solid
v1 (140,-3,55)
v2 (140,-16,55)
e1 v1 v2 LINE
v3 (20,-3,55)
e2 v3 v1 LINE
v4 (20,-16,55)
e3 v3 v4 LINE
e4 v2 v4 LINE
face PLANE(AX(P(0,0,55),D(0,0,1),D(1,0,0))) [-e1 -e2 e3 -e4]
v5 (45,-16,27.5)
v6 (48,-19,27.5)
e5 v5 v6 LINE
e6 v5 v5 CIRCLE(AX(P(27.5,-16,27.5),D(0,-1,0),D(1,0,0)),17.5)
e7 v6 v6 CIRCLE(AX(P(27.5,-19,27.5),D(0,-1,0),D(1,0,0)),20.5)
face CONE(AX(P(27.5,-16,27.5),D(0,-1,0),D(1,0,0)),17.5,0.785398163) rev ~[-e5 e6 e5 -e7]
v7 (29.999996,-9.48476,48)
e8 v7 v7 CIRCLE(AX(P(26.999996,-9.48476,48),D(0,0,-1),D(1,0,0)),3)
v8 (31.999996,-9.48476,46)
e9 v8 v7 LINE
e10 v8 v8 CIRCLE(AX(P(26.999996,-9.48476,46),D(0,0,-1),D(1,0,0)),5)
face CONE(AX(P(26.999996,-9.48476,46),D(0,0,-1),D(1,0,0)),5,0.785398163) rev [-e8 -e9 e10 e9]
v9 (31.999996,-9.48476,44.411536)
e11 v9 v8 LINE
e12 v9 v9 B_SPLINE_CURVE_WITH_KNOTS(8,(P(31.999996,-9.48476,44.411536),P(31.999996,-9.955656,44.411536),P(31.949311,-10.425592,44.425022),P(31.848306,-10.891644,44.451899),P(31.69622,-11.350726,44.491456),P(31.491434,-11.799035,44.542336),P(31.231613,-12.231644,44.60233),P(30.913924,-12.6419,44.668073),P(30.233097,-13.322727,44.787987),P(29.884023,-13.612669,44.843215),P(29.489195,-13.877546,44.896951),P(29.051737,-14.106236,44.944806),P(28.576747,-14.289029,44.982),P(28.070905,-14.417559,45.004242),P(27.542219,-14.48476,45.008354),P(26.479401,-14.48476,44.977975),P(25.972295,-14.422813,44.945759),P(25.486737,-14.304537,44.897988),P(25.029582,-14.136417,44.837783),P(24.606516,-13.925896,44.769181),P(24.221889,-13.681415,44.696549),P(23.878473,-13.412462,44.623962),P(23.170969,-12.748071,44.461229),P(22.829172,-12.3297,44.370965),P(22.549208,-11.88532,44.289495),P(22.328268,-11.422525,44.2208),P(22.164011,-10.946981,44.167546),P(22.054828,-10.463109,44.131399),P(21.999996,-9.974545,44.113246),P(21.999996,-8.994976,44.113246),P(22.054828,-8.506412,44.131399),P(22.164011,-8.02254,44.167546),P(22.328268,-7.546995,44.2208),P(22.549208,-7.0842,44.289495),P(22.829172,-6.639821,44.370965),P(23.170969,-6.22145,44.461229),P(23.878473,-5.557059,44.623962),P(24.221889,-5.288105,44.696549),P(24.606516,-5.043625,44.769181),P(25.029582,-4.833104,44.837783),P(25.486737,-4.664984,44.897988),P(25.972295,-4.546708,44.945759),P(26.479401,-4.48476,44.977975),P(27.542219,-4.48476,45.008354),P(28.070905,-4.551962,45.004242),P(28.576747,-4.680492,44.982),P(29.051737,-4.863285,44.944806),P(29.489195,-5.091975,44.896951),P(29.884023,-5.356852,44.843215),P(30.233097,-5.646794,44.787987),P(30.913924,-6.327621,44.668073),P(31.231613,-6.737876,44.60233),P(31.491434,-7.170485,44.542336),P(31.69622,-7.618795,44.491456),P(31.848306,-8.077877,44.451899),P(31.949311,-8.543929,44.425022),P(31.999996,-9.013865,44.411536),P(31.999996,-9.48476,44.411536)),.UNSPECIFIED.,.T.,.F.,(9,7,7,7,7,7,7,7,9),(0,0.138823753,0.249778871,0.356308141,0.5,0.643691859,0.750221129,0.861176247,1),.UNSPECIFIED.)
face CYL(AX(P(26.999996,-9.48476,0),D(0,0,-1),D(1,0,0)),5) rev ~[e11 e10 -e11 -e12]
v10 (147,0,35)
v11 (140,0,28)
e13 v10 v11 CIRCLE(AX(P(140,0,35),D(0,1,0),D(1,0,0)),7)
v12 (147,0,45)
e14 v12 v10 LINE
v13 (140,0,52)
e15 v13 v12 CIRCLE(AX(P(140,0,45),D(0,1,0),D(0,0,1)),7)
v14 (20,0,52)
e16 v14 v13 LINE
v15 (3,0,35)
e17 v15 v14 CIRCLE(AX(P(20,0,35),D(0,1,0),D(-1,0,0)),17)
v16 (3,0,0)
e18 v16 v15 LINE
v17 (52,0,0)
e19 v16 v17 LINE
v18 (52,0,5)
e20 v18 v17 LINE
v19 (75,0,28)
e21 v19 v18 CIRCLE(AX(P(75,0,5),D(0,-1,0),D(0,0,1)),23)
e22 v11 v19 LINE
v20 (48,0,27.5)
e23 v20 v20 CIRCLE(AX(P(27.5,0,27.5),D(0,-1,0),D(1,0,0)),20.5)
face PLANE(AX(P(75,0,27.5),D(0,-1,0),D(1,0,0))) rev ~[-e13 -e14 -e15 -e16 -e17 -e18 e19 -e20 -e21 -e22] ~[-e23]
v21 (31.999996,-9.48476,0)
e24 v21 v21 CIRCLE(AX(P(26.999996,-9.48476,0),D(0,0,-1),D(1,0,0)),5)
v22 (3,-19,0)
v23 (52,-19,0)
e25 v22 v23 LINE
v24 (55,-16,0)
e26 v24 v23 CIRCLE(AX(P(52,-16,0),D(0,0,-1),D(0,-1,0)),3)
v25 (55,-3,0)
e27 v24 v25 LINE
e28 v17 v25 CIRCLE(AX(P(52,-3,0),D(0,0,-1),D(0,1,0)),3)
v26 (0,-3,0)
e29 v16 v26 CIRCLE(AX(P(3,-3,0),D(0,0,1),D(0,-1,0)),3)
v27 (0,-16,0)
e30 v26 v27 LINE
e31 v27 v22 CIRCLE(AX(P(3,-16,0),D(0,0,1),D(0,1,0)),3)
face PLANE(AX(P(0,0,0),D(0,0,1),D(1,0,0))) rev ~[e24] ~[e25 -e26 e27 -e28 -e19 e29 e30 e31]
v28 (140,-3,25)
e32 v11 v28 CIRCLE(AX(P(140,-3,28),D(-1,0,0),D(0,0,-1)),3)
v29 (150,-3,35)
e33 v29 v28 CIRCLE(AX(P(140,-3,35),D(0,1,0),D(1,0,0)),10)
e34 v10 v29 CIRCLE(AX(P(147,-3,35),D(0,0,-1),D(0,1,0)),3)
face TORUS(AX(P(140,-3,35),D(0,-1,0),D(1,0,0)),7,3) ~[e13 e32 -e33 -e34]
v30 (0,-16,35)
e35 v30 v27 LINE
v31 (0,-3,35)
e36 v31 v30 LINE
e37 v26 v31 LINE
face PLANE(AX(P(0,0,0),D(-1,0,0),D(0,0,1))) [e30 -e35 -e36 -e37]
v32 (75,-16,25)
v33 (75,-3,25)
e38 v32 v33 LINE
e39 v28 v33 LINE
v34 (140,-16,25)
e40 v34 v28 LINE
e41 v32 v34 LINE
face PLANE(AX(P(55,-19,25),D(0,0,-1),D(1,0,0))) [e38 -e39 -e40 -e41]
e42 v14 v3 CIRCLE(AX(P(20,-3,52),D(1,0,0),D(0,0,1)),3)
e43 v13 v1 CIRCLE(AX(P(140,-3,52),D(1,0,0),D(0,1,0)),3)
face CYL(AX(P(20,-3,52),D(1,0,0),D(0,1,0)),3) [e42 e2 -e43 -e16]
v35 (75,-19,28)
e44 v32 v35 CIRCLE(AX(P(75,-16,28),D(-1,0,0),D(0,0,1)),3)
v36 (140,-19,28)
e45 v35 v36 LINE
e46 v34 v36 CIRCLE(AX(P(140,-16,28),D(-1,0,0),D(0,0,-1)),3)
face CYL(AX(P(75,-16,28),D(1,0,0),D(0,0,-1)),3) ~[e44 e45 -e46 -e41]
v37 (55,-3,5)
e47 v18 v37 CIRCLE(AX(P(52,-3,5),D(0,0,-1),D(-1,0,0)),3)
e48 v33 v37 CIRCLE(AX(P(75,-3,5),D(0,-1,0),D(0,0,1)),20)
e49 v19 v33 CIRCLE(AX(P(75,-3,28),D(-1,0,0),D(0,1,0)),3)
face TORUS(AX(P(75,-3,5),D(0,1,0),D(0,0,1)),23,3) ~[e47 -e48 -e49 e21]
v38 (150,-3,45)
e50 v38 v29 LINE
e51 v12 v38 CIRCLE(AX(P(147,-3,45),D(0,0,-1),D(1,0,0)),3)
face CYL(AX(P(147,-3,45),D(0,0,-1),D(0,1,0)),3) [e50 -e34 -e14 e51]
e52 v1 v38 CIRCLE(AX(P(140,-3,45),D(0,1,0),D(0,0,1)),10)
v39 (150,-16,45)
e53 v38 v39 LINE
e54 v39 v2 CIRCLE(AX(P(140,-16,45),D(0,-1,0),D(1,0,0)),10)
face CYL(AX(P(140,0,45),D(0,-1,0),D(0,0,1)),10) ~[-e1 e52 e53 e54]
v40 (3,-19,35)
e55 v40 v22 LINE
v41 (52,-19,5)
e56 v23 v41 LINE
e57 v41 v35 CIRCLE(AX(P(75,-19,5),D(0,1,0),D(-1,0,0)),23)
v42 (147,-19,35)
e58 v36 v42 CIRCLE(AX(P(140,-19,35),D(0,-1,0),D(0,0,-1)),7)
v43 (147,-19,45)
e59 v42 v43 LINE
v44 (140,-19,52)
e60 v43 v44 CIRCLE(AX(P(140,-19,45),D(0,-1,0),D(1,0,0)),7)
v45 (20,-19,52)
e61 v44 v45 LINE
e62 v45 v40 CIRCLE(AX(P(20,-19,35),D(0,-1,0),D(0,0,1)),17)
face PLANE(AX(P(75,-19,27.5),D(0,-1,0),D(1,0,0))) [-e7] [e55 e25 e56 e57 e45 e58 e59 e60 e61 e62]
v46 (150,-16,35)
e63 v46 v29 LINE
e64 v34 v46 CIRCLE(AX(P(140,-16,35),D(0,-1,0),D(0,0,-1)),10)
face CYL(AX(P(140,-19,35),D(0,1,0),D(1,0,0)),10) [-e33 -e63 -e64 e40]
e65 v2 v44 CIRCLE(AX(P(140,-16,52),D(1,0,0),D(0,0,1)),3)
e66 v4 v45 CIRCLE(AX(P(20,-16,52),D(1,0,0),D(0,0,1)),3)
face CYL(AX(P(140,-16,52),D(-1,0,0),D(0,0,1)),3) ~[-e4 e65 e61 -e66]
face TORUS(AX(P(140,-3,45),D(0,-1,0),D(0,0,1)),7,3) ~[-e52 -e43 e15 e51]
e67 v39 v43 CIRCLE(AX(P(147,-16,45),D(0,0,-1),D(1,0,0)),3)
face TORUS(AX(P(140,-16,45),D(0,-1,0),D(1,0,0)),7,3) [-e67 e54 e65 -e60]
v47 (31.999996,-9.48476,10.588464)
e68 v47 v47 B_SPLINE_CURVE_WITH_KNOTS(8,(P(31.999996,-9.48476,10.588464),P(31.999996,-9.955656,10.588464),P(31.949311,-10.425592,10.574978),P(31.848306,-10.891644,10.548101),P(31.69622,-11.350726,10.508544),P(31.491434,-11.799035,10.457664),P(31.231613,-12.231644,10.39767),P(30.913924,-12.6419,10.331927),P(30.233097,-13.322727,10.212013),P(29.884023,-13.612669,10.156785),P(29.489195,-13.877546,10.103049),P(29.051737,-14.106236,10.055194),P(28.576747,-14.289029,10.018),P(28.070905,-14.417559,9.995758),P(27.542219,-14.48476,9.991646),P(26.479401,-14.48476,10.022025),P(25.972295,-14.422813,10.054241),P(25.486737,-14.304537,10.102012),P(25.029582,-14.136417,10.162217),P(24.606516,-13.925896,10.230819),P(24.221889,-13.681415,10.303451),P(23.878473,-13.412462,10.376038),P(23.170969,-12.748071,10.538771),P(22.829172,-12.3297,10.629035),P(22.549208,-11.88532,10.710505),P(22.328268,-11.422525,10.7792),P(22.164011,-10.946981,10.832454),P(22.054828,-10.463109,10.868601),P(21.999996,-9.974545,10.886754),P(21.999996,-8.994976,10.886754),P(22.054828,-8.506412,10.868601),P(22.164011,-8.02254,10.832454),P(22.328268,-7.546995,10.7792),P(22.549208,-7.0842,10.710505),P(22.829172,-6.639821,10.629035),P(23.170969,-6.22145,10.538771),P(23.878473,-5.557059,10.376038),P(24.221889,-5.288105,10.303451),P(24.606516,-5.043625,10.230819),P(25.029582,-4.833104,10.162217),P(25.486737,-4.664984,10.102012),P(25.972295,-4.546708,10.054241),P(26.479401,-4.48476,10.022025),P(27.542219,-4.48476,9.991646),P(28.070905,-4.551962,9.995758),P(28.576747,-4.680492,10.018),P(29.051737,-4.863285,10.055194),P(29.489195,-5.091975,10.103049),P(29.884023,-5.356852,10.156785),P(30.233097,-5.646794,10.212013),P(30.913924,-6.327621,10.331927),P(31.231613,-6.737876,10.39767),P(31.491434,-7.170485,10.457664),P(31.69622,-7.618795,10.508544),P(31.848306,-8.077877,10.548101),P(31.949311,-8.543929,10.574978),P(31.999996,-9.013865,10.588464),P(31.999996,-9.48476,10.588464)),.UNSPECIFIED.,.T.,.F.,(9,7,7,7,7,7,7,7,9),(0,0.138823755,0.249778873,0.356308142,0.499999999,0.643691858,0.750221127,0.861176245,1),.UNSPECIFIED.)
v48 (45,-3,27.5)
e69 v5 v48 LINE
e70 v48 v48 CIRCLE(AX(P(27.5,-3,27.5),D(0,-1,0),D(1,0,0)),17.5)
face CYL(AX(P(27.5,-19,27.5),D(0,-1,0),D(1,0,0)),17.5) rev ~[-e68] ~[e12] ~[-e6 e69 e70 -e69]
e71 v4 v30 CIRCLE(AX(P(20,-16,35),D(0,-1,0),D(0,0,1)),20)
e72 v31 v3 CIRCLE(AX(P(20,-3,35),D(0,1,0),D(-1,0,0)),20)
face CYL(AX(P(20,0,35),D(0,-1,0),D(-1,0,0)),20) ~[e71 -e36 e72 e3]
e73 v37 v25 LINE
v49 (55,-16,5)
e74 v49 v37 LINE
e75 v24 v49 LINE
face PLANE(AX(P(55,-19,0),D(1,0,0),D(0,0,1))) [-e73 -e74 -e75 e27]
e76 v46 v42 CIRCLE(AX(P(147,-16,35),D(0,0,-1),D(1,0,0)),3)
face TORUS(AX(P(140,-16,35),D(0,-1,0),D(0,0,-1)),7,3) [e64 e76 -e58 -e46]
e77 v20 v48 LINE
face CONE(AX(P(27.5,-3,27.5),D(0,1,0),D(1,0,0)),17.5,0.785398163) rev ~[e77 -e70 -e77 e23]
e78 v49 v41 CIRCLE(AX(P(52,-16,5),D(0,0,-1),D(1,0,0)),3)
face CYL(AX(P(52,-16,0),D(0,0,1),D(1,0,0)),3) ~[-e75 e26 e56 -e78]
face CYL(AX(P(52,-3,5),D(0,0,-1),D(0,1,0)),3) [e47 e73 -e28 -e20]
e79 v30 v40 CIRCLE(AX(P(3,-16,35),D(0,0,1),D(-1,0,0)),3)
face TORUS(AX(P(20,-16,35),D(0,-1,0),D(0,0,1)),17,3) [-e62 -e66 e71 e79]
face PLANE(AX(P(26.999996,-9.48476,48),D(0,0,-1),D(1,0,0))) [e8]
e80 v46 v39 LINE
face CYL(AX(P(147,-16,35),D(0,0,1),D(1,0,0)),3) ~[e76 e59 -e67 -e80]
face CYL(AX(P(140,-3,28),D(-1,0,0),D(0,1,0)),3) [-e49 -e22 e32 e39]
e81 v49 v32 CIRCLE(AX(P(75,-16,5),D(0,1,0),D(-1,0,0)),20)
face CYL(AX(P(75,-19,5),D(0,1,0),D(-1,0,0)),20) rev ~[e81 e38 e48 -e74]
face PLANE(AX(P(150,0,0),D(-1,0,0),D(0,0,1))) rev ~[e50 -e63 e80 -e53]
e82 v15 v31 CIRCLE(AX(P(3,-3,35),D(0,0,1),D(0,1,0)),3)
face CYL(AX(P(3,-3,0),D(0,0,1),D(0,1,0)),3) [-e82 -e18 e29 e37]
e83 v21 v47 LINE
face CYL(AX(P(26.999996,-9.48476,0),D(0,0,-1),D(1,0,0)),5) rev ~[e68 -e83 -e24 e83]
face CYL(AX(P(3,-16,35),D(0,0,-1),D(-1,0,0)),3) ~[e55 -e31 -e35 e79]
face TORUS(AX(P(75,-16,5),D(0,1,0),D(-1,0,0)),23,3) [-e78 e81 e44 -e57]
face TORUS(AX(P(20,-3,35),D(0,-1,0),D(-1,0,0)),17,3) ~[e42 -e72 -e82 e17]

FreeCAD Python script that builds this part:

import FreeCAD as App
import Part
import Sketcher

V = App.Vector


def edges_at(feature, points):
    """Names of the edges that pass closest to the given points."""
    edges = feature.Shape.Edges
    near = lambda p: min(range(len(edges)), key=lambda i: edges[i].distToShape(Part.Vertex(*p))[0])
    return sorted({f"Edge{near(p) + 1}" for p in points})

doc = App.newDocument("Part")
body = doc.addObject("PartDesign::Body", "Body")

# Sketch on XZ plane
sketch1 = doc.addObject("Sketcher::SketchObject", "Sketch")
body.addObject(sketch1)
sketch1.AttachmentSupport = (doc.XZ_Plane, [""])
sketch1.MapMode = "FlatFace"
sketch1.addGeometry(Part.LineSegment(V(0, 55, 0), V(0, 0, 0)), False)
sketch1.addGeometry(Part.LineSegment(V(0, 0, 0), V(150, 0, 0)), False)
sketch1.addGeometry(Part.LineSegment(V(150, 0, 0), V(150, 55, 0)), False)
sketch1.addGeometry(Part.LineSegment(V(150, 55, 0), V(0, 55, 0)), False)
sketch1.addConstraint(Sketcher.Constraint("Coincident", 0, 2, 1, 1))
sketch1.addConstraint(Sketcher.Constraint("Coincident", 1, 2, 2, 1))
sketch1.addConstraint(Sketcher.Constraint("Coincident", 2, 2, 3, 1))
sketch1.addConstraint(Sketcher.Constraint("Coincident", 3, 2, 0, 1))
sketch1.addConstraint(Sketcher.Constraint("Vertical", 0))
sketch1.addConstraint(Sketcher.Constraint("Horizontal", 1))
sketch1.addConstraint(Sketcher.Constraint("Vertical", 2))
sketch1.addConstraint(Sketcher.Constraint("Horizontal", 3))
sketch1.addConstraint(Sketcher.Constraint("Coincident", 0, 2, -1, 1))
sketch1.addConstraint(Sketcher.Constraint("DistanceX", 1, 1, 1, 2, 150.0))
sketch1.addConstraint(Sketcher.Constraint("DistanceY", 0, 2, 0, 1, 55.0))
pad1 = doc.addObject("PartDesign::Pad", "Pad")
body.addObject(pad1)
pad1.Profile = sketch1
pad1.Length = 19

# Sketch on XZ plane
sketch2 = doc.addObject("Sketcher::SketchObject", "Sketch001")
body.addObject(sketch2)
sketch2.AttachmentSupport = (doc.XZ_Plane, [""])
sketch2.MapMode = "FlatFace"
sketch2.AttachmentOffset = App.Placement(V(0, 0, 19), App.Rotation())
sketch2.addGeometry(Part.Circle(V(28, 28, 0), V(0, 0, 1), 18), False)
sketch2.addConstraint(Sketcher.Constraint("Diameter", 0, 35.0))
sketch2.addConstraint(Sketcher.Constraint("DistanceX", -1, 1, 0, 3, 27.5))
sketch2.addConstraint(Sketcher.Constraint("DistanceY", -1, 1, 0, 3, 27.5))
pocket1 = doc.addObject("PartDesign::Pocket", "Pocket")
body.addObject(pocket1)
pocket1.Profile = sketch2
pocket1.Type = "ThroughAll"

# Sketch on XZ plane
sketch3 = doc.addObject("Sketcher::SketchObject", "Sketch002")
body.addObject(sketch3)
sketch3.AttachmentSupport = (doc.XZ_Plane, [""])
sketch3.MapMode = "FlatFace"
sketch3.AttachmentOffset = App.Placement(V(0, 0, 19), App.Rotation())
sketch3.addGeometry(Part.LineSegment(V(55, 25, 0), V(55, 0, 0)), False)
sketch3.addGeometry(Part.LineSegment(V(55, 0, 0), V(150, 0, 0)), False)
sketch3.addGeometry(Part.LineSegment(V(150, 0, 0), V(150, 25, 0)), False)
sketch3.addGeometry(Part.LineSegment(V(150, 25, 0), V(55, 25, 0)), False)
sketch3.addConstraint(Sketcher.Constraint("Coincident", 0, 2, 1, 1))
sketch3.addConstraint(Sketcher.Constraint("Coincident", 1, 2, 2, 1))
sketch3.addConstraint(Sketcher.Constraint("Coincident", 2, 2, 3, 1))
sketch3.addConstraint(Sketcher.Constraint("Coincident", 3, 2, 0, 1))
sketch3.addConstraint(Sketcher.Constraint("Vertical", 0))
sketch3.addConstraint(Sketcher.Constraint("Horizontal", 1))
sketch3.addConstraint(Sketcher.Constraint("Vertical", 2))
sketch3.addConstraint(Sketcher.Constraint("Horizontal", 3))
sketch3.addConstraint(Sketcher.Constraint("PointOnObject", 0, 2, -1))
sketch3.addConstraint(Sketcher.Constraint("DistanceX", 1, 1, 1, 2, 95.0))
sketch3.addConstraint(Sketcher.Constraint("DistanceY", 0, 2, 0, 1, 25.0))
sketch3.addConstraint(Sketcher.Constraint("DistanceX", -1, 1, 0, 2, 55.0))
pocket2 = doc.addObject("PartDesign::Pocket", "Pocket001")
body.addObject(pocket2)
pocket2.Profile = sketch3
pocket2.Type = "ThroughAll"
doc.recompute()

fillet = doc.addObject("PartDesign::Fillet", "Fillet")
body.addObject(fillet)
fillet.Base = (pocket2, edges_at(pocket2, [(55, -9.5, 25), (0, -9.5, 55)]))
fillet.Radius = 20
doc.recompute()

fillet2 = doc.addObject("PartDesign::Fillet", "Fillet001")
body.addObject(fillet2)
fillet2.Base = (fillet, edges_at(fillet, [(150, -9.5, 25), (150, -9.5, 55)]))
fillet2.Radius = 10
doc.recompute()

fillet3 = doc.addObject("PartDesign::Fillet", "Fillet002")
body.addObject(fillet3)
fillet3.Base = (fillet2, edges_at(fillet2, [(107.5, -19, 25), (80, 0, 55)]))
fillet3.Radius = 3

# Sketch on XY plane
sketch4 = doc.addObject("Sketcher::SketchObject", "Sketch003")
body.addObject(sketch4)
sketch4.AttachmentSupport = (doc.XY_Plane, [""])
sketch4.MapMode = "FlatFace"
sketch4.addGeometry(Part.Circle(V(27, -9, 0), V(0, 0, 1), 5), False)
sketch4.addConstraint(Sketcher.Constraint("Diameter", 0, 10.0))
sketch4.addConstraint(Sketcher.Constraint("DistanceY", 0, 3, -1, 1, 9.48476))
sketch4.addConstraint(Sketcher.Constraint("DistanceX", -1, 1, 0, 3, 26.999996))
pocket3 = doc.addObject("PartDesign::Pocket", "Pocket002")
body.addObject(pocket3)
pocket3.Profile = sketch4
pocket3.Length = 48
pocket3.Reversed = True
doc.recompute()

chamfer = doc.addObject("PartDesign::Chamfer", "Chamfer")
body.addObject(chamfer)
chamfer.Base = (pocket3, edges_at(pocket3, [(10, -19, 27.5), (10, 0, 27.5)]))
chamfer.Size = 3
doc.recompute()

chamfer2 = doc.addObject("PartDesign::Chamfer", "Chamfer001")
body.addObject(chamfer2)
chamfer2.Base = (chamfer, edges_at(chamfer, [(22, -9.485, 48)]))
chamfer2.Size = 2

doc.recompute()
